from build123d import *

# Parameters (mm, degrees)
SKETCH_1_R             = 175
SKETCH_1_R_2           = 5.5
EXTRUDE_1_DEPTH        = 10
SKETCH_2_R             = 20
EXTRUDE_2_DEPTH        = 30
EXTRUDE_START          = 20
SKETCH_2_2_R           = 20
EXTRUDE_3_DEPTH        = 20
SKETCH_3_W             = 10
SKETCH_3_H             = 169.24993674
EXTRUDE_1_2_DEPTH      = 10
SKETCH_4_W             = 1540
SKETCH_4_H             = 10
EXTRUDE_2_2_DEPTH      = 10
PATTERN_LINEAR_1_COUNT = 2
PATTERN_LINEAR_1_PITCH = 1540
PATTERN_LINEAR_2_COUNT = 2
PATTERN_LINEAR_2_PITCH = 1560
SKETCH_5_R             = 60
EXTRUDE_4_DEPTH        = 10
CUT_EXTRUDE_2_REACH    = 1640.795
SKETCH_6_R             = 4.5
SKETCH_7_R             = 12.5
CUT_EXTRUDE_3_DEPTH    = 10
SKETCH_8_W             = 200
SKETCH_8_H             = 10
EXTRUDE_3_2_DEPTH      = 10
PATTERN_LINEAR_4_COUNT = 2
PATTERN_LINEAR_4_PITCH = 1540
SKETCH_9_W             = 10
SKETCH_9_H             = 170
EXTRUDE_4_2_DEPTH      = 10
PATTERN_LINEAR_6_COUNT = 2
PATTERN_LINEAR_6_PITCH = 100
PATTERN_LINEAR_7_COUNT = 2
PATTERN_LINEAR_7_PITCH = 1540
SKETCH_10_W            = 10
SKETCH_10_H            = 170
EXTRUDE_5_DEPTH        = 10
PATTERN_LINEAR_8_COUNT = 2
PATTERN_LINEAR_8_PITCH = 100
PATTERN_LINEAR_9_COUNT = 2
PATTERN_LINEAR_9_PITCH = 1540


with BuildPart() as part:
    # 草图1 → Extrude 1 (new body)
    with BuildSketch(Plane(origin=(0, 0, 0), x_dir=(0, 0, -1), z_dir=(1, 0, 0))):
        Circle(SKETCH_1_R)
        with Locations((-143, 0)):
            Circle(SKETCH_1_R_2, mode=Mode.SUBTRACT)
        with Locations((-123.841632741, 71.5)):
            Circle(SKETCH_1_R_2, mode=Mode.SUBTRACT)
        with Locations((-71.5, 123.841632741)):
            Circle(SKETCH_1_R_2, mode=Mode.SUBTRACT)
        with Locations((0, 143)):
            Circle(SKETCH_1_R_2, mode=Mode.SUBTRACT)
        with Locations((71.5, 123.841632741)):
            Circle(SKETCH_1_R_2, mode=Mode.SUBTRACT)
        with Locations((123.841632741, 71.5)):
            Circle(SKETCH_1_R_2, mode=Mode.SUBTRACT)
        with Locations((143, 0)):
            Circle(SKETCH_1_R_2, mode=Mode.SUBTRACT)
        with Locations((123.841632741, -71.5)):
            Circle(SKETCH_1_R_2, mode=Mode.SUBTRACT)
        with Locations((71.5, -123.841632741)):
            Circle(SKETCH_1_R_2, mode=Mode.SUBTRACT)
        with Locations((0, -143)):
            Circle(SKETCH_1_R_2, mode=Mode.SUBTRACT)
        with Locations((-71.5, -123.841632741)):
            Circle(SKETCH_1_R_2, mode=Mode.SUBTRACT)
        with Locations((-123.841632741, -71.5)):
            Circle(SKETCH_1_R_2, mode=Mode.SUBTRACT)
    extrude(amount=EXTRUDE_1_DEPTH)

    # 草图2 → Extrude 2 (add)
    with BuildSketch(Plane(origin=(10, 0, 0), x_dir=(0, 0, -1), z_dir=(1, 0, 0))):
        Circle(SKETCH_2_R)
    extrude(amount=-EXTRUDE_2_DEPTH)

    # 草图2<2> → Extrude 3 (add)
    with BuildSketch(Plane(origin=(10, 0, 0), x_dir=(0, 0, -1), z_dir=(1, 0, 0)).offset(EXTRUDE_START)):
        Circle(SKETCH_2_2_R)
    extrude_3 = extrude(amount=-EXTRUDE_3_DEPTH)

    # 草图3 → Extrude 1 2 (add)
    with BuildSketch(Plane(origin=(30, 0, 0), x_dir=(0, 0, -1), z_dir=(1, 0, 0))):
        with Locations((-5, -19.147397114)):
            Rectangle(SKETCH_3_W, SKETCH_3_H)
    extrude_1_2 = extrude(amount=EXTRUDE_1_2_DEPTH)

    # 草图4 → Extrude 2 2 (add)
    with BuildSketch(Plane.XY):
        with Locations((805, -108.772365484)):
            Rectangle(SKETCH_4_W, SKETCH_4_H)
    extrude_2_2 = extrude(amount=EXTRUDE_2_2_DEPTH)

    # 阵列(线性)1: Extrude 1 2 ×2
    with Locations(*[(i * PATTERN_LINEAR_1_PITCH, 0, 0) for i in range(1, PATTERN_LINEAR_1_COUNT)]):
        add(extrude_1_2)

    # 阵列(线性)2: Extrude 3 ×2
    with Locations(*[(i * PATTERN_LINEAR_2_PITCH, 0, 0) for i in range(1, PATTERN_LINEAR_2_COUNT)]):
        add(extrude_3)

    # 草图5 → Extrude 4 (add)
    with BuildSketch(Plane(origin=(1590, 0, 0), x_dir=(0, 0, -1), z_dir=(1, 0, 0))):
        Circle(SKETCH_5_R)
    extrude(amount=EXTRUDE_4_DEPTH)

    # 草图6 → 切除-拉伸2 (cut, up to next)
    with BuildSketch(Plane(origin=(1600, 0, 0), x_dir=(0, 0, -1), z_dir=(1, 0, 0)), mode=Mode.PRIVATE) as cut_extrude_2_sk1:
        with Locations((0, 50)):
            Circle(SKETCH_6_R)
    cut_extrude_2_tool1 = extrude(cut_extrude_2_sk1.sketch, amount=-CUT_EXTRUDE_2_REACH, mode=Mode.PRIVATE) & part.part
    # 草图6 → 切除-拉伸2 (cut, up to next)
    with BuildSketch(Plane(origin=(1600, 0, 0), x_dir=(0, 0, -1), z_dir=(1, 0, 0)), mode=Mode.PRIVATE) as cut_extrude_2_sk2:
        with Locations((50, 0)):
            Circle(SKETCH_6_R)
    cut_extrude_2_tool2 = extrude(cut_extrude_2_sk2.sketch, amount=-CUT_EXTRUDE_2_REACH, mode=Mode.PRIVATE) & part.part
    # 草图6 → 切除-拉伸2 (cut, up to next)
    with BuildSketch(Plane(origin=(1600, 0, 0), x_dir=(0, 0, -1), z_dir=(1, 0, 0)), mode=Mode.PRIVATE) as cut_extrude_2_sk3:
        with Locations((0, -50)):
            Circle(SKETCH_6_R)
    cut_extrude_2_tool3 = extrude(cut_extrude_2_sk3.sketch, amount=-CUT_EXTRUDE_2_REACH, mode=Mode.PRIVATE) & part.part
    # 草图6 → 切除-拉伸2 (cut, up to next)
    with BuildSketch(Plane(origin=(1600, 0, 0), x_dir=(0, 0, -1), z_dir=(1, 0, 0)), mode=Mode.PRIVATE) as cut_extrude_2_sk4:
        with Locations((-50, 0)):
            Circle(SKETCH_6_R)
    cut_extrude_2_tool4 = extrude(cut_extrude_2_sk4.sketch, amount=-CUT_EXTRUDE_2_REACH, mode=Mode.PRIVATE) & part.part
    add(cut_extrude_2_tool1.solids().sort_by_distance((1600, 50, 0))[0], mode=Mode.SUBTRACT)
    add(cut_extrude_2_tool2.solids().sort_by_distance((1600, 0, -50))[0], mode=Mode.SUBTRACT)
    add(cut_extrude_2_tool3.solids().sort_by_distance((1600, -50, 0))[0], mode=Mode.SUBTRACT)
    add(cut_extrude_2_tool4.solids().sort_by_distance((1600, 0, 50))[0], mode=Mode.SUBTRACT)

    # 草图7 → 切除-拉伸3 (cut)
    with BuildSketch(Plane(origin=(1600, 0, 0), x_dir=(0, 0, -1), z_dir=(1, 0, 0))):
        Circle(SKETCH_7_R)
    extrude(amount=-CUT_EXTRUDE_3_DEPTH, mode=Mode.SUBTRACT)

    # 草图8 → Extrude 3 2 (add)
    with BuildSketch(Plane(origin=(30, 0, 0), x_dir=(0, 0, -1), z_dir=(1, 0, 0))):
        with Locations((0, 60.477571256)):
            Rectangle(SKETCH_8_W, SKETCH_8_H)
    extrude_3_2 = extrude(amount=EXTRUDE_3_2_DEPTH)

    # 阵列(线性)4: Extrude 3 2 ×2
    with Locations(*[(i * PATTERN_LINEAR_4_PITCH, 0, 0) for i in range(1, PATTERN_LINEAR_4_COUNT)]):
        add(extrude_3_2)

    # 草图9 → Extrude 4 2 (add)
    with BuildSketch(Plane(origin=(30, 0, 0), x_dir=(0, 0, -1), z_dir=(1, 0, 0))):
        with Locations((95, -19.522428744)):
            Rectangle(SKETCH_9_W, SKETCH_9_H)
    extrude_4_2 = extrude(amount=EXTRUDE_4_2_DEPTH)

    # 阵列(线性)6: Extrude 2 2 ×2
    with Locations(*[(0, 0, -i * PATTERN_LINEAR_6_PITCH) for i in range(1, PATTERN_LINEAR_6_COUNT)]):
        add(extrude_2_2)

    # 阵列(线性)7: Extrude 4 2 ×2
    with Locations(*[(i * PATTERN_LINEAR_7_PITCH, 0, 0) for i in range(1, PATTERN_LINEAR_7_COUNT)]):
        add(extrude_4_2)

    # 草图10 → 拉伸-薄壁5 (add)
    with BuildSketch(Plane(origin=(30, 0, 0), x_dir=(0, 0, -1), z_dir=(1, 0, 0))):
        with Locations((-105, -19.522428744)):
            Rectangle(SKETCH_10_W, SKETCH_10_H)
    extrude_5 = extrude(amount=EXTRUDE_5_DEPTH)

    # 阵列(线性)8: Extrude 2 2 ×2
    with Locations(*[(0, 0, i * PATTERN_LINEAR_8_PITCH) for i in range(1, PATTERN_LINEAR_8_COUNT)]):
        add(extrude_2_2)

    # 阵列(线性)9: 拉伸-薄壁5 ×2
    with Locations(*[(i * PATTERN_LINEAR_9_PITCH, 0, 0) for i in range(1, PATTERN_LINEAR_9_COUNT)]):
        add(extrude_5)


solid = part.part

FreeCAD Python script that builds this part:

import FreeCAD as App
import Part
import Sketcher
from FreeCAD import Vector

doc = App.newDocument("Part")
body = doc.addObject("PartDesign::Body", "Body")

# Sketch on YZ plane
sketch1 = body.newObject("Sketcher::SketchObject", "Sketch")
sketch1.AttachmentSupport = (doc.getObject("YZ_Plane"), [""])
sketch1.MapMode = "FlatFace"
sketch1.addGeometry([
    Part.Circle(Vector(0, 0, 0), Vector(0, 0, 1), 175),  # 0
    Part.Circle(Vector(-124, 72, 0), Vector(0, 0, 1), 6),  # 1
    Part.Circle(Vector(-72, 124, 0), Vector(0, 0, 1), 6),  # 2
    Part.Circle(Vector(-143, 0, 0), Vector(0, 0, 1), 6),  # 3
    Part.Circle(Vector(-124, -72, 0), Vector(0, 0, 1), 6),  # 4
    Part.Circle(Vector(-72, -124, 0), Vector(0, 0, 1), 6),  # 5
    Part.Circle(Vector(0, 143, 0), Vector(0, 0, 1), 6),  # 6
    Part.Circle(Vector(72, 124, 0), Vector(0, 0, 1), 6),  # 7
    Part.Circle(Vector(124, 72, 0), Vector(0, 0, 1), 6),  # 8
    Part.Circle(Vector(0, -143, 0), Vector(0, 0, 1), 6),  # 9
    Part.Circle(Vector(72, -124, 0), Vector(0, 0, 1), 6),  # 10
    Part.Circle(Vector(143, 0, 0), Vector(0, 0, 1), 6),  # 11
    Part.Circle(Vector(124, -72, 0), Vector(0, 0, 1), 6),  # 12
], False)
sketch1.addConstraint([
    Sketcher.Constraint("Coincident", 0, 3, -1, 1),
    Sketcher.Constraint("Equal", 1, 2),
    Sketcher.Constraint("Equal", 2, 3),
    Sketcher.Constraint("Equal", 3, 4),
    Sketcher.Constraint("Equal", 4, 5),
    Sketcher.Constraint("Equal", 5, 6),
    Sketcher.Constraint("Equal", 6, 7),
    Sketcher.Constraint("Equal", 7, 8),
    Sketcher.Constraint("Equal", 8, 9),
    Sketcher.Constraint("Equal", 9, 10),
    Sketcher.Constraint("Equal", 10, 11),
    Sketcher.Constraint("Equal", 11, 12),
    Sketcher.Constraint("Symmetric", 5, 3, 7, 3, -1, 1),
    Sketcher.Constraint("Symmetric", 4, 3, 8, 3, -1, 1),
    Sketcher.Constraint("Symmetric", 6, 3, 9, 3, -1, 1),
    Sketcher.Constraint("Symmetric", 2, 3, 10, 3, -1, 1),
    Sketcher.Constraint("Symmetric", 3, 3, 11, 3, -1, 1),
    Sketcher.Constraint("Symmetric", 1, 3, 12, 3, -1, 1),
    Sketcher.Constraint("Symmetric", 2, 3, 7, 3, -2),
    Sketcher.Constraint("Symmetric", 1, 3, 8, 3, -2),
    Sketcher.Constraint("PointOnObject", 3, 3, -1),
    Sketcher.Constraint("PointOnObject", 6, 3, -2),
    Sketcher.Constraint("Diameter", 0, 350.0),
    Sketcher.Constraint("Diameter", 1, 11.0),
    Sketcher.Constraint("DistanceX", 3, 3, -1, 1, 143.0),
    Sketcher.Constraint("DistanceY", -1, 1, 6, 3, 143.0),
    Sketcher.Constraint("DistanceY", 4, 3, 1, 3, 143.0),
    Sketcher.Constraint("DistanceX", 2, 3, 7, 3, 143.0),
    Sketcher.Constraint("DistanceX", 1, 3, -1, 1, 123.841633),
    Sketcher.Constraint("DistanceY", -1, 1, 2, 3, 123.841633),
])
pad1 = body.newObject("PartDesign::Pad", "Pad")
pad1.Profile = sketch1
pad1.Length = 10

# Sketch on YZ plane
sketch2 = body.newObject("Sketcher::SketchObject", "Sketch001")
sketch2.AttachmentSupport = (doc.getObject("YZ_Plane"), [""])
sketch2.MapMode = "FlatFace"
sketch2.AttachmentOffset = App.Placement(Vector(0, 0, 10), App.Rotation())
sketch2.addGeometry(Part.Circle(Vector(0, 0, 0), Vector(0, 0, 1), 20), False)
sketch2.addConstraint([
    Sketcher.Constraint("Coincident", 0, 3, -1, 1),
    Sketcher.Constraint("Diameter", 0, 40.0),
])
pad2 = body.newObject("PartDesign::Pad", "Pad001")
pad2.Profile = sketch2
pad2.Length = 30
pad2.Reversed = True

# Sketch on YZ plane
sketch3 = body.newObject("Sketcher::SketchObject", "Sketch002")
sketch3.AttachmentSupport = (doc.getObject("YZ_Plane"), [""])
sketch3.MapMode = "FlatFace"
sketch3.AttachmentOffset = App.Placement(Vector(0, 0, 30), App.Rotation())
sketch3.addGeometry(Part.Circle(Vector(0, 0, 0), Vector(0, 0, 1), 20), False)
sketch3.addConstraint([
    Sketcher.Constraint("Coincident", 0, 3, -1, 1),
    Sketcher.Constraint("Diameter", 0, 40.0),
])
pad3 = body.newObject("PartDesign::Pad", "Pad002")
pad3.Profile = sketch3
pad3.Length = 20
pad3.Reversed = True

# Sketch on YZ plane
sketch4 = body.newObject("Sketcher::SketchObject", "Sketch003")
sketch4.AttachmentSupport = (doc.getObject("YZ_Plane"), [""])
sketch4.MapMode = "FlatFace"
sketch4.AttachmentOffset = App.Placement(Vector(0, 0, 30), App.Rotation())
sketch4.addGeometry([
    Part.LineSegment(Vector(65, 10, 0), Vector(-104, 10, 0)),
    Part.LineSegment(Vector(-104, 10, 0), Vector(-104, 0, 0)),
    Part.LineSegment(Vector(-104, 0, 0), Vector(65, 0, 0)),
    Part.LineSegment(Vector(65, 0, 0), Vector(65, 10, 0)),
], False)
sketch4.addConstraint([
    Sketcher.Constraint("Coincident", 0, 2, 1, 1),
    Sketcher.Constraint("Coincident", 1, 2, 2, 1),
    Sketcher.Constraint("Coincident", 2, 2, 3, 1),
    Sketcher.Constraint("Coincident", 3, 2, 0, 1),
    Sketcher.Constraint("Horizontal", 0),
    Sketcher.Constraint("Vertical", 1),
    Sketcher.Constraint("Horizontal", 2),
    Sketcher.Constraint("Vertical", 3),
    Sketcher.Constraint("PointOnObject", 1, 2, -1),
    Sketcher.Constraint("DistanceY", 1, 2, 1, 1, 10.0),
    Sketcher.Constraint("DistanceX", 0, 2, 0, 1, 169.249937),
    Sketcher.Constraint("DistanceX", -1, 1, 2, 2, 65.477571),
])
pad4 = body.newObject("PartDesign::Pad", "Pad003")
pad4.Profile = sketch4
pad4.Length = 10

# Sketch on XY plane
sketch5 = body.newObject("Sketcher::SketchObject", "Sketch004")
sketch5.AttachmentSupport = (doc.getObject("XY_Plane"), [""])
sketch5.MapMode = "FlatFace"
sketch5.addGeometry([
    Part.LineSegment(Vector(35, -104, 0), Vector(35, -114, 0)),
    Part.LineSegment(Vector(35, -114, 0), Vector(1575, -114, 0)),
    Part.LineSegment(Vector(1575, -114, 0), Vector(1575, -104, 0)),
    Part.LineSegment(Vector(1575, -104, 0), Vector(35, -104, 0)),
], False)
sketch5.addConstraint([
    Sketcher.Constraint("Coincident", 0, 2, 1, 1),
    Sketcher.Constraint("Coincident", 1, 2, 2, 1),
    Sketcher.Constraint("Coincident", 2, 2, 3, 1),
    Sketcher.Constraint("Coincident", 3, 2, 0, 1),
    Sketcher.Constraint("Vertical", 0),
    Sketcher.Constraint("Horizontal", 1),
    Sketcher.Constraint("Vertical", 2),
    Sketcher.Constraint("Horizontal", 3),
    Sketcher.Constraint("DistanceX", 1, 1, 1, 2, 1540.0),
    Sketcher.Constraint("DistanceY", 0, 2, 0, 1, 10.0),
    Sketcher.Constraint("DistanceX", -1, 1, 0, 2, 35.0),
    Sketcher.Constraint("DistanceY", 0, 2, -1, 1, 113.772365),
])
pad5 = body.newObject("PartDesign::Pad", "Pad004")
pad5.Profile = sketch5
pad5.Length = 10
doc.recompute()

linearpattern = body.newObject("PartDesign::LinearPattern", "LinearPattern")
linearpattern.Originals = [pad4]
linearpattern.Direction = (doc.getObject("X_Axis"), [""])
linearpattern.Mode = "offset"
linearpattern.Offset = 1540
linearpattern.Occurrences = 2
body.Tip = linearpattern
doc.recompute()

linearpattern2 = body.newObject("PartDesign::LinearPattern", "LinearPattern001")
linearpattern2.Originals = [pad3]
linearpattern2.Direction = (doc.getObject("X_Axis"), [""])
linearpattern2.Mode = "offset"
linearpattern2.Offset = 1560
linearpattern2.Occurrences = 2
body.Tip = linearpattern2

# Sketch on YZ plane
sketch6 = body.newObject("Sketcher::SketchObject", "Sketch005")
sketch6.AttachmentSupport = (doc.getObject("YZ_Plane"), [""])
sketch6.MapMode = "FlatFace"
sketch6.AttachmentOffset = App.Placement(Vector(0, 0, 1590), App.Rotation())
sketch6.addGeometry(Part.Circle(Vector(0, 0, 0), Vector(0, 0, 1), 60), False)
sketch6.addConstraint([
    Sketcher.Constraint("Coincident", 0, 3, -1, 1),
    Sketcher.Constraint("Diameter", 0, 120.0),
])
pad6 = body.newObject("PartDesign::Pad", "Pad005")
pad6.Profile = sketch6
pad6.Length = 10

# Sketch on YZ plane
sketch7 = body.newObject("Sketcher::SketchObject", "Sketch006")
sketch7.AttachmentSupport = (doc.getObject("YZ_Plane"), [""])
sketch7.MapMode = "FlatFace"
sketch7.AttachmentOffset = App.Placement(Vector(0, 0, 1600), App.Rotation())
sketch7.addGeometry(Part.Circle(Vector(50, 0, 0), Vector(0, 0, 1), 4.5), False)
sketch7.addConstraint([
    Sketcher.Constraint("PointOnObject", 0, 3, -1),
    Sketcher.Constraint("Diameter", 0, 9.0),
    Sketcher.Constraint("DistanceX", -1, 1, 0, 3, 50.0),
])
pocket1 = body.newObject("PartDesign::Pocket", "Pocket")
pocket1.Profile = sketch7
pocket1.Type = "UpToFirst"

# Sketch on YZ plane
sketch8 = body.newObject("Sketcher::SketchObject", "Sketch007")
sketch8.AttachmentSupport = (doc.getObject("YZ_Plane"), [""])
sketch8.MapMode = "FlatFace"
sketch8.AttachmentOffset = App.Placement(Vector(0, 0, 1600), App.Rotation())
sketch8.addGeometry(Part.Circle(Vector(0, -50, 0), Vector(0, 0, 1), 4.5), False)
sketch8.addConstraint([
    Sketcher.Constraint("PointOnObject", 0, 3, -2),
    Sketcher.Constraint("Diameter", 0, 9.0),
    Sketcher.Constraint("DistanceY", 0, 3, -1, 1, 50.0),
])
pocket2 = body.newObject("PartDesign::Pocket", "Pocket001")
pocket2.Profile = sketch8
pocket2.Type = "UpToFirst"

# Sketch on YZ plane
sketch9 = body.newObject("Sketcher::SketchObject", "Sketch008")
sketch9.AttachmentSupport = (doc.getObject("YZ_Plane"), [""])
sketch9.MapMode = "FlatFace"
sketch9.AttachmentOffset = App.Placement(Vector(0, 0, 1600), App.Rotation())
sketch9.addGeometry(Part.Circle(Vector(-50, 0, 0), Vector(0, 0, 1), 4.5), False)
sketch9.addConstraint([
    Sketcher.Constraint("PointOnObject", 0, 3, -1),
    Sketcher.Constraint("Diameter", 0, 9.0),
    Sketcher.Constraint("DistanceX", 0, 3, -1, 1, 50.0),
])
pocket3 = body.newObject("PartDesign::Pocket", "Pocket002")
pocket3.Profile = sketch9
pocket3.Type = "UpToFirst"

# Sketch on YZ plane
sketch10 = body.newObject("Sketcher::SketchObject", "Sketch009")
sketch10.AttachmentSupport = (doc.getObject("YZ_Plane"), [""])
sketch10.MapMode = "FlatFace"
sketch10.AttachmentOffset = App.Placement(Vector(0, 0, 1600), App.Rotation())
sketch10.addGeometry(Part.Circle(Vector(0, 50, 0), Vector(0, 0, 1), 4.5), False)
sketch10.addConstraint([
    Sketcher.Constraint("PointOnObject", 0, 3, -2),
    Sketcher.Constraint("Diameter", 0, 9.0),
    Sketcher.Constraint("DistanceY", -1, 1, 0, 3, 50.0),
])
pocket4 = body.newObject("PartDesign::Pocket", "Pocket003")
pocket4.Profile = sketch10
pocket4.Type = "UpToFirst"

# Sketch on YZ plane
sketch11 = body.newObject("Sketcher::SketchObject", "Sketch010")
sketch11.AttachmentSupport = (doc.getObject("YZ_Plane"), [""])
sketch11.MapMode = "FlatFace"
sketch11.AttachmentOffset = App.Placement(Vector(0, 0, 1600), App.Rotation())
sketch11.addGeometry(Part.Circle(Vector(0, 0, 0), Vector(0, 0, 1), 12), False)
sketch11.addConstraint([
    Sketcher.Constraint("Coincident", 0, 3, -1, 1),
    Sketcher.Constraint("Diameter", 0, 25.0),
])
pocket5 = body.newObject("PartDesign::Pocket", "Pocket004")
pocket5.Profile = sketch11
pocket5.Length = 10

# Sketch on YZ plane
sketch12 = body.newObject("Sketcher::SketchObject", "Sketch011")
sketch12.AttachmentSupport = (doc.getObject("YZ_Plane"), [""])
sketch12.MapMode = "FlatFace"
sketch12.AttachmentOffset = App.Placement(Vector(0, 0, 30), App.Rotation())
sketch12.addGeometry([
    Part.LineSegment(Vector(65, 100, 0), Vector(55, 100, 0)),
    Part.LineSegment(Vector(55, 100, 0), Vector(55, -100, 0)),
    Part.LineSegment(Vector(55, -100, 0), Vector(65, -100, 0)),
    Part.LineSegment(Vector(65, -100, 0), Vector(65, 100, 0)),
], False)
sketch12.addConstraint([
    Sketcher.Constraint("Coincident", 0, 2, 1, 1),
    Sketcher.Constraint("Coincident", 1, 2, 2, 1),
    Sketcher.Constraint("Coincident", 2, 2, 3, 1),
    Sketcher.Constraint("Coincident", 3, 2, 0, 1),
    Sketcher.Constraint("Horizontal", 0),
    Sketcher.Constraint("Vertical", 1),
    Sketcher.Constraint("Horizontal", 2),
    Sketcher.Constraint("Vertical", 3),
    Sketcher.Constraint("DistanceX", 0, 2, 0, 1, 10.0),
    Sketcher.Constraint("DistanceY", 1, 2, 1, 1, 200.0),
    Sketcher.Constraint("DistanceY", -1, 1, 0, 2, 100.0),
    Sketcher.Constraint("DistanceX", -1, 1, 0, 2, 55.477571),
])
pad7 = body.newObject("PartDesign::Pad", "Pad006")
pad7.Profile = sketch12
pad7.Length = 10
doc.recompute()

linearpattern3 = body.newObject("PartDesign::LinearPattern", "LinearPattern002")
linearpattern3.Originals = [pad7]
linearpattern3.Direction = (doc.getObject("X_Axis"), [""])
linearpattern3.Mode = "offset"
linearpattern3.Offset = 1540
linearpattern3.Occurrences = 2
body.Tip = linearpattern3

# Sketch on YZ plane
sketch13 = body.newObject("Sketcher::SketchObject", "Sketch012")
sketch13.AttachmentSupport = (doc.getObject("YZ_Plane"), [""])
sketch13.MapMode = "FlatFace"
sketch13.AttachmentOffset = App.Placement(Vector(0, 0, 30), App.Rotation())
sketch13.addGeometry([
    Part.LineSegment(Vector(65, -90, 0), Vector(-105, -90, 0)),
    Part.LineSegment(Vector(-105, -90, 0), Vector(-105, -100, 0)),
    Part.LineSegment(Vector(-105, -100, 0), Vector(65, -100, 0)),
    Part.LineSegment(Vector(65, -100, 0), Vector(65, -90, 0)),
], False)
sketch13.addConstraint([
    Sketcher.Constraint("Coincident", 0, 2, 1, 1),
    Sketcher.Constraint("Coincident", 1, 2, 2, 1),
    Sketcher.Constraint("Coincident", 2, 2, 3, 1),
    Sketcher.Constraint("Coincident", 3, 2, 0, 1),
    Sketcher.Constraint("Horizontal", 0),
    Sketcher.Constraint("Vertical", 1),
    Sketcher.Constraint("Horizontal", 2),
    Sketcher.Constraint("Vertical", 3),
    Sketcher.Constraint("DistanceX", 0, 2, 0, 1, 170.0),
    Sketcher.Constraint("DistanceY", 1, 2, 1, 1, 10.0),
    Sketcher.Constraint("DistanceY", 0, 2, -1, 1, 90.0),
    Sketcher.Constraint("DistanceX", 0, 2, -1, 1, 104.522429),
])
pad8 = body.newObject("PartDesign::Pad", "Pad007")
pad8.Profile = sketch13
pad8.Length = 10
doc.recompute()

linearpattern4 = body.newObject("PartDesign::LinearPattern", "LinearPattern003")
linearpattern4.Originals = [pad5]
linearpattern4.Direction = (doc.getObject("Z_Axis"), [""])
linearpattern4.Mode = "offset"
linearpattern4.Offset = 100
linearpattern4.Occurrences = 2
linearpattern4.Reversed = True
body.Tip = linearpattern4
doc.recompute()

linearpattern5 = body.newObject("PartDesign::LinearPattern", "LinearPattern004")
linearpattern5.Originals = [pad8]
linearpattern5.Direction = (doc.getObject("X_Axis"), [""])
linearpattern5.Mode = "offset"
linearpattern5.Offset = 1540
linearpattern5.Occurrences = 2
body.Tip = linearpattern5

# Sketch on YZ plane
sketch14 = body.newObject("Sketcher::SketchObject", "Sketch013")
sketch14.AttachmentSupport = (doc.getObject("YZ_Plane"), [""])
sketch14.MapMode = "FlatFace"
sketch14.AttachmentOffset = App.Placement(Vector(0, 0, 30), App.Rotation())
sketch14.addGeometry([
    Part.LineSegment(Vector(65, 110, 0), Vector(-105, 110, 0)),
    Part.LineSegment(Vector(-105, 110, 0), Vector(-105, 100, 0)),
    Part.LineSegment(Vector(-105, 100, 0), Vector(65, 100, 0)),
    Part.LineSegment(Vector(65, 100, 0), Vector(65, 110, 0)),
], False)
sketch14.addConstraint([
    Sketcher.Constraint("Coincident", 0, 2, 1, 1),
    Sketcher.Constraint("Coincident", 1, 2, 2, 1),
    Sketcher.Constraint("Coincident", 2, 2, 3, 1),
    Sketcher.Constraint("Coincident", 3, 2, 0, 1),
    Sketcher.Constraint("Horizontal", 0),
    Sketcher.Constraint("Vertical", 1),
    Sketcher.Constraint("Horizontal", 2),
    Sketcher.Constraint("Vertical", 3),
    Sketcher.Constraint("DistanceX", 0, 2, 0, 1, 170.0),
    Sketcher.Constraint("DistanceY", 1, 2, 1, 1, 10.0),
    Sketcher.Constraint("DistanceY", -1, 1, 0, 2, 110.0),
    Sketcher.Constraint("DistanceX", 0, 2, -1, 1, 104.522429),
])
pad9 = body.newObject("PartDesign::Pad", "Pad008")
pad9.Profile = sketch14
pad9.Length = 10
doc.recompute()

linearpattern6 = body.newObject("PartDesign::LinearPattern", "LinearPattern005")
linearpattern6.Originals = [pad5]
linearpattern6.Direction = (doc.getObject("Z_Axis"), [""])
linearpattern6.Mode = "offset"
linearpattern6.Offset = 100
linearpattern6.Occurrences = 2
body.Tip = linearpattern6
doc.recompute()

linearpattern7 = body.newObject("PartDesign::LinearPattern", "LinearPattern006")
linearpattern7.Originals = [pad9]
linearpattern7.Direction = (doc.getObject("X_Axis"), [""])
linearpattern7.Mode = "offset"
linearpattern7.Offset = 1540
linearpattern7.Occurrences = 2
body.Tip = linearpattern7

doc.recompute()
